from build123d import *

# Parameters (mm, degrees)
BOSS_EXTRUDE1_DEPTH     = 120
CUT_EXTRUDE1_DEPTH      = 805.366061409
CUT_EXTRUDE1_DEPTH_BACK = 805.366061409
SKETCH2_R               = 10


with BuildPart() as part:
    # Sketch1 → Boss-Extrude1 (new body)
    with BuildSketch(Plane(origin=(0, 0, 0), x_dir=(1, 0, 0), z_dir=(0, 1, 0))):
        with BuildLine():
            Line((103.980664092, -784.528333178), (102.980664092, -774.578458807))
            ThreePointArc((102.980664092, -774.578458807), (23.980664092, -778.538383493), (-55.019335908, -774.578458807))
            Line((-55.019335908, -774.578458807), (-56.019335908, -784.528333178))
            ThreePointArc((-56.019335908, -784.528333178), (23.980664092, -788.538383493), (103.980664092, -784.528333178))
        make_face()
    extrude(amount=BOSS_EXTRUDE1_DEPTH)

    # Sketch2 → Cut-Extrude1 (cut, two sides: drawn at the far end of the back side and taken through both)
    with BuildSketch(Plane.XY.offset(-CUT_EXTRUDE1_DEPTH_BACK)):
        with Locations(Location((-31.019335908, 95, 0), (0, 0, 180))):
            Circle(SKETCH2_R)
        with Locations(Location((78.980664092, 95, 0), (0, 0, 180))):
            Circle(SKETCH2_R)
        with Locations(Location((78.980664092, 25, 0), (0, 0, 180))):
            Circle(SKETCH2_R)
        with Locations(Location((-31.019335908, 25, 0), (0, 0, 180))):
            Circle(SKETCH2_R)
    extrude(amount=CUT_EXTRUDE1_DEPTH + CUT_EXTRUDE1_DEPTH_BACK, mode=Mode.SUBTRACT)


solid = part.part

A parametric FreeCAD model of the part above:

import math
import FreeCAD as App
import Part
import Sketcher
Q = App.Units.Quantity

doc = App.newDocument("Part")
params = doc.addObject("Spreadsheet::Sheet", "Params")
for row, (alias, value) in enumerate([
    ("sketch1_radius", "790 mm"),
    ("sketch1_radius2", "800 mm"),
    ("pad1_length", "120 mm"),
    ("sketch2_diameter", "20 mm"),
], start=1):
    params.set(f"A{row}", alias)
    params.set(f"B{row}", "=" + value)
    params.setAlias(f"B{row}", alias)

body = doc.addObject("PartDesign::Body", "Body")

# Sketch on XZ plane
sketch1 = body.newObject("Sketcher::SketchObject", "Sketch")
sketch1.AttachmentSupport = (doc.getObject("XZ_Plane"), [""])
sketch1.MapMode = "FlatFace"
sketch1.addGeometry(Part.LineSegment(App.Vector(103.980664, 784.528333, 0), App.Vector(102.980664, 774.578459, 0)), False)
sketch1.addGeometry(Part.ArcOfCircle(Part.Circle(App.Vector(23.980664, -11.461616, 0), App.Vector(0, 0, 1), 790), math.radians(84.26083), math.radians(95.73917)), False)
sketch1.addGeometry(Part.LineSegment(App.Vector(-55.019336, 774.578459, 0), App.Vector(-56.019336, 784.528333, 0)), False)
sketch1.addGeometry(Part.ArcOfCircle(Part.Circle(App.Vector(23.980664, -11.461616, 0), App.Vector(0, 0, 1), 800), math.radians(84.26083), math.radians(95.73917)), False)
sketch1.addConstraint(Sketcher.Constraint("Coincident", 0, 2, 1, 1))
sketch1.addConstraint(Sketcher.Constraint("Coincident", 1, 2, 2, 1))
sketch1.addConstraint(Sketcher.Constraint("Coincident", 2, 2, 3, 2))
sketch1.addConstraint(Sketcher.Constraint("Coincident", 3, 1, 0, 1))
sketch1.addConstraint(Sketcher.Constraint("Coincident", 3, 3, 1, 3))
sketch1.addConstraint(Sketcher.Constraint("Horizontal", 0, 2, 1, 2))
sketch1.addConstraint(Sketcher.Constraint("Horizontal", 2, 2, 3, 1))
sketch1.addConstraint(Sketcher.Constraint("Radius", 1, Q("790 mm")))
sketch1.addConstraint(Sketcher.Constraint("Radius", 3, Q("800 mm")))
sketch1.addConstraint(Sketcher.Constraint("DistanceX", 3, 3, 0, 2, Q("79 mm")))
sketch1.addConstraint(Sketcher.Constraint("DistanceX", 2, 2, 0, 2, Q("159 mm")))
sketch1.addConstraint(Sketcher.Constraint("DistanceY", -1, 1, 0, 2, Q("774.578459 mm")))
sketch1.addConstraint(Sketcher.Constraint("DistanceX", -1, 1, 1, 3, Q("23.980664 mm")))
sketch1.setExpression("Constraints[7]", "Params.sketch1_radius")
sketch1.setExpression("Constraints[8]", "Params.sketch1_radius2")
pad1 = body.newObject("PartDesign::Pad", "Pad")
pad1.Profile = sketch1
pad1.setExpression("Length", "Params.pad1_length")
pad1.Reversed = True

# Sketch on XY plane
sketch2 = body.newObject("Sketcher::SketchObject", "Sketch001")
sketch2.AttachmentSupport = (doc.getObject("XY_Plane"), [""])
sketch2.MapMode = "FlatFace"
sketch2.addGeometry(Part.Circle(App.Vector(-31.019336, 95, 0), App.Vector(0, 0, 1), 10), False)
sketch2.addGeometry(Part.Circle(App.Vector(78.980664, 95, 0), App.Vector(0, 0, 1), 10), False)
sketch2.addGeometry(Part.Circle(App.Vector(78.980664, 25, 0), App.Vector(0, 0, 1), 10), False)
sketch2.addGeometry(Part.Circle(App.Vector(-31.019336, 25, 0), App.Vector(0, 0, 1), 10), False)
sketch2.addConstraint(Sketcher.Constraint("Equal", 0, 1))
sketch2.addConstraint(Sketcher.Constraint("Equal", 1, 2))
sketch2.addConstraint(Sketcher.Constraint("Equal", 2, 3))
sketch2.addConstraint(Sketcher.Constraint("Horizontal", 0, 3, 1, 3))
sketch2.addConstraint(Sketcher.Constraint("Horizontal", 2, 3, 3, 3))
sketch2.addConstraint(Sketcher.Constraint("Vertical", 1, 3, 2, 3))
sketch2.addConstraint(Sketcher.Constraint("Vertical", 0, 3, 3, 3))
sketch2.addConstraint(Sketcher.Constraint("Diameter", 0, Q("20 mm")))
sketch2.addConstraint(Sketcher.Constraint("DistanceY", -1, 1, 0, 3, Q("95 mm")))
sketch2.addConstraint(Sketcher.Constraint("DistanceY", -1, 1, 2, 3, Q("25 mm")))
sketch2.addConstraint(Sketcher.Constraint("DistanceX", 0, 3, 1, 3, Q("110 mm")))
sketch2.addConstraint(Sketcher.Constraint("DistanceX", 0, 3, -1, 1, Q("31.019336 mm")))
sketch2.setExpression("Constraints[7]", "Params.sketch2_diameter")
pocket1 = body.newObject("PartDesign::Pocket", "Pocket")
pocket1.Profile = sketch2
pocket1.Type = "ThroughAll"
pocket1.Midplane = True

doc.recompute()
